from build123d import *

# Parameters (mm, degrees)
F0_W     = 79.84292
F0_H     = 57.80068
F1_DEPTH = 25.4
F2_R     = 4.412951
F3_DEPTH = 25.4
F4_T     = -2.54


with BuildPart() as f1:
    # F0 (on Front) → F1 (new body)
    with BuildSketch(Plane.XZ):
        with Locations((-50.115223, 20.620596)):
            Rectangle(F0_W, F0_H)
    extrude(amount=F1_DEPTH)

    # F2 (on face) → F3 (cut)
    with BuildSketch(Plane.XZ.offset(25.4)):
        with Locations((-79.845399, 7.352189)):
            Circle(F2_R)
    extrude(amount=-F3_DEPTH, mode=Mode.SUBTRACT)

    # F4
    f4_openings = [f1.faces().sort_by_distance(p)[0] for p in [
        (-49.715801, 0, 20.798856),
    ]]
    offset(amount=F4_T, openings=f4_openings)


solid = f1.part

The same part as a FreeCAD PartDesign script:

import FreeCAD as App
import Part
import Sketcher
from FreeCAD import Vector
Q = App.Units.Quantity


def faces_at(feature, points):
    """Names of the faces that lie closest to the given points."""
    faces = feature.Shape.Faces
    near = lambda p: min(range(len(faces)), key=lambda i: faces[i].distToShape(Part.Vertex(*p))[0])
    return sorted({f"Face{near(p) + 1}" for p in points})

doc = App.newDocument("Part")
params = doc.addObject("Spreadsheet::Sheet", "Params")
for row, (alias, value) in enumerate([
    ("pad1_length", "1 in"),
    ("pocket1_length", "1 in"),
    ("thickness_wall", "0.1 in"),
], start=1):
    params.set(f"A{row}", alias)
    params.set(f"B{row}", "=" + value)
    params.setAlias(f"B{row}", alias)

body = doc.addObject("PartDesign::Body", "Body")

sketch1 = doc.addObject("Sketcher::SketchObject", "Sketch")
body.addObject(sketch1)
sketch1.AttachmentSupport = (doc.XZ_Plane, [""])
sketch1.MapMode = "FlatFace"
sketch1.addGeometry([
    Part.LineSegment(Vector(-90, 50, 0), Vector(-90, -8, 0)),
    Part.LineSegment(Vector(-90, -8, 0), Vector(-10, -8, 0)),
    Part.LineSegment(Vector(-10, -8, 0), Vector(-10, 50, 0)),
    Part.LineSegment(Vector(-10, 50, 0), Vector(-90, 50, 0)),
], False)
sketch1.addConstraint([
    Sketcher.Constraint("Coincident", 0, 2, 1, 1),
    Sketcher.Constraint("Coincident", 1, 2, 2, 1),
    Sketcher.Constraint("Coincident", 2, 2, 3, 1),
    Sketcher.Constraint("Coincident", 3, 2, 0, 1),
    Sketcher.Constraint("Vertical", 0),
    Sketcher.Constraint("Horizontal", 1),
    Sketcher.Constraint("Vertical", 2),
    Sketcher.Constraint("Horizontal", 3),
    Sketcher.Constraint("DistanceX", 1, 1, 1, 2, Q("79.84292 mm")),
    Sketcher.Constraint("DistanceY", 0, 2, 0, 1, Q("57.80068 mm")),
    Sketcher.Constraint("DistanceX", 0, 2, -1, 1, Q("90.036683 mm")),
    Sketcher.Constraint("DistanceY", 0, 2, -1, 1, Q("8.279744 mm")),
])
pad1 = doc.addObject("PartDesign::Pad", "Pad")
body.addObject(pad1)
pad1.Profile = sketch1
pad1.setExpression("Length", "Params.pad1_length")

sketch2 = doc.addObject("Sketcher::SketchObject", "Sketch001")
body.addObject(sketch2)
sketch2.AttachmentSupport = (doc.XZ_Plane, [""])
sketch2.MapMode = "FlatFace"
sketch2.AttachmentOffset = App.Placement(Vector(0, 0, 1 * 25.4), App.Rotation())
sketch2.addGeometry(Part.Circle(Vector(-79.8, 7.4, 0), Vector(0, 0, 1), 4.4), False)
sketch2.addConstraint([
    Sketcher.Constraint("Diameter", 0, Q("8.825902 mm")),
    Sketcher.Constraint("DistanceX", 0, 3, -1, 1, Q("79.845399 mm")),
    Sketcher.Constraint("DistanceY", -1, 1, 0, 3, Q("7.352189 mm")),
])
pocket1 = doc.addObject("PartDesign::Pocket", "Pocket")
body.addObject(pocket1)
pocket1.Profile = sketch2
pocket1.setExpression("Length", "Params.pocket1_length")
doc.recompute()

thickness = doc.addObject("PartDesign::Thickness", "Thickness")
body.addObject(thickness)
thickness.Base = (pocket1, faces_at(pocket1, [(-50.115, 0, 20.621)]))
thickness.setExpression("Value", "Params.thickness_wall")
thickness.Reversed = True
thickness.Join = "Arc"

doc.recompute()
